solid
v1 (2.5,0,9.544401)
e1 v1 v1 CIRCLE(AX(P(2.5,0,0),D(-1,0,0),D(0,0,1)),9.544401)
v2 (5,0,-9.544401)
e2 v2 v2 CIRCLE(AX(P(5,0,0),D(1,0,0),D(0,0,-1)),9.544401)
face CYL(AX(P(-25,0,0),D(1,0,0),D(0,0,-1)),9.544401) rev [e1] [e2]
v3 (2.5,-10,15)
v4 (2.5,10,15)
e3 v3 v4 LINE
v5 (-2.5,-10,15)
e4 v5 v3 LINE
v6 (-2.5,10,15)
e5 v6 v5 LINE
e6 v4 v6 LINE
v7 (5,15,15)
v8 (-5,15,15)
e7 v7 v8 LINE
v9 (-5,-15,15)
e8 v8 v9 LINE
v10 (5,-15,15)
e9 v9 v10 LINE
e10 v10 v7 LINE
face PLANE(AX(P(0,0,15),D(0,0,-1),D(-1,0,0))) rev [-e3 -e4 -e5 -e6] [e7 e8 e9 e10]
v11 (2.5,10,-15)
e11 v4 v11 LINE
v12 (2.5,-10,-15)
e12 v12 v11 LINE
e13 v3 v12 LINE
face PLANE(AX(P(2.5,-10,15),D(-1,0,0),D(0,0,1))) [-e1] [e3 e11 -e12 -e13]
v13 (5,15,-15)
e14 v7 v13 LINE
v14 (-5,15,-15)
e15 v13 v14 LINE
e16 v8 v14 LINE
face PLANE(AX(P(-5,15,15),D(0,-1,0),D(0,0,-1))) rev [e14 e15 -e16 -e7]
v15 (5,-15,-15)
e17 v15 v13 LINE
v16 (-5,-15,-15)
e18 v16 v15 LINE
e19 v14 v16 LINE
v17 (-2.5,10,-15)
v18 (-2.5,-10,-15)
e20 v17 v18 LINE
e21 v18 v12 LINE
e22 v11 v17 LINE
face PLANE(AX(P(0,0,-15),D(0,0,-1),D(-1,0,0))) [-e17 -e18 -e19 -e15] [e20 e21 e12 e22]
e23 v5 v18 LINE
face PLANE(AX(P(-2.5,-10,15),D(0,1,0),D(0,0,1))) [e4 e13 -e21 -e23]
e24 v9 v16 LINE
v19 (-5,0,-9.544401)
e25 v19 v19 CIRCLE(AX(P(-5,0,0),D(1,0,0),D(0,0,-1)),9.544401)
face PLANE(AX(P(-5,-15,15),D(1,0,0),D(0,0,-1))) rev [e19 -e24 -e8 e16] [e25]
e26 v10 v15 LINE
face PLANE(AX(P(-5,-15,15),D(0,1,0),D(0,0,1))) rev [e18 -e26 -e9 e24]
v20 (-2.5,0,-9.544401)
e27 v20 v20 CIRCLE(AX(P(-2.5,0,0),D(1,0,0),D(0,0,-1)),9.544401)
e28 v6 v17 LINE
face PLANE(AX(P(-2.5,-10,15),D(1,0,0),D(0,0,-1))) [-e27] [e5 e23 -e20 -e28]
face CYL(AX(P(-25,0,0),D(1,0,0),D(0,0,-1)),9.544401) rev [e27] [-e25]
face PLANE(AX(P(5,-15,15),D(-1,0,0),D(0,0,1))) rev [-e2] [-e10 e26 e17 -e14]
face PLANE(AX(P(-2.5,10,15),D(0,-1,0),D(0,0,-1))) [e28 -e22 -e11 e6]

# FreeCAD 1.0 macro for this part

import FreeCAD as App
import Part
import Sketcher
Q = App.Units.Quantity


def add_polygon(sketch, points):
    """Adds a closed chain of lines whose ends are joined by coincident constraints."""
    first, n = sketch.GeometryCount, len(points)
    for a, b in zip(points, points[1:] + points[:1]):
        sketch.addGeometry(Part.LineSegment(App.Vector(*a, 0), App.Vector(*b, 0)), False)
    for i in range(n):
        sketch.addConstraint(Sketcher.Constraint("Coincident", first + i, 2, first + (i + 1) % n, 1))

doc = App.newDocument("Part")
params = doc.addObject("Spreadsheet::Sheet", "Params")
for row, (alias, value) in enumerate([
    ("sketch1_width", "10 mm"),
    ("sketch1_width2", "5 mm"),
    ("sketch1_height", "30 mm"),
    ("sketch1_height2", "20 mm"),
    ("pad1_length", "30 mm"),
    ("pocket1_length", "30 mm"),
], start=1):
    params.set(f"A{row}", alias)
    params.set(f"B{row}", "=" + value)
    params.setAlias(f"B{row}", alias)

body = doc.addObject("PartDesign::Body", "Body")

sketch1 = body.newObject("Sketcher::SketchObject", "Sketch")
sketch1.AttachmentSupport = (doc.getObject("XY_Plane"), [""])
sketch1.MapMode = "FlatFace"
add_polygon(sketch1, [(-5, 15), (-5, -15), (5, -15), (5, 15)])
add_polygon(sketch1, [(2, -10), (-2, -10), (-2, 10), (2, 10)])
sketch1.addConstraint([
    Sketcher.Constraint("Vertical", 0),
    Sketcher.Constraint("Horizontal", 1),
    Sketcher.Constraint("Vertical", 2),
    Sketcher.Constraint("Horizontal", 3),
    Sketcher.Constraint("Horizontal", 4),
    Sketcher.Constraint("Vertical", 5),
    Sketcher.Constraint("Horizontal", 6),
    Sketcher.Constraint("Vertical", 7),
    Sketcher.Constraint("Symmetric", 0, 2, 2, 2, -1, 1),
    Sketcher.Constraint("Symmetric", 4, 2, 6, 2, -1, 1),
    Sketcher.Constraint("DistanceX", 1, 1, 1, 2, Q("10 mm")),
    Sketcher.Constraint("DistanceX", 4, 2, 4, 1, Q("5 mm")),
    Sketcher.Constraint("DistanceY", 0, 2, 0, 1, Q("30 mm")),
    Sketcher.Constraint("DistanceY", 5, 1, 5, 2, Q("20 mm")),
])
sketch1.setExpression("Constraints[18]", "Params.sketch1_width")
sketch1.setExpression("Constraints[19]", "Params.sketch1_width2")
sketch1.setExpression("Constraints[20]", "Params.sketch1_height")
sketch1.setExpression("Constraints[21]", "Params.sketch1_height2")
pad1 = body.newObject("PartDesign::Pad", "Pad")
pad1.Profile = sketch1
pad1.setExpression("Length", "Params.pad1_length")
pad1.Midplane = True

sketch2 = body.newObject("Sketcher::SketchObject", "Sketch001")
sketch2.AttachmentSupport = (doc.getObject("YZ_Plane"), [""])
sketch2.MapMode = "FlatFace"
sketch2.AttachmentOffset = App.Placement(App.Vector(0, 0, 5), App.Rotation())
sketch2.addGeometry(Part.Circle(App.Vector(0, 0, 0), App.Vector(0, 0, 1), 10), False)
sketch2.addConstraint([
    Sketcher.Constraint("Coincident", 0, 3, -1, 1),
    Sketcher.Constraint("Diameter", 0, Q("19.088802 mm")),
])
pocket1 = body.newObject("PartDesign::Pocket", "Pocket")
pocket1.Profile = sketch2
pocket1.setExpression("Length", "Params.pocket1_length")

doc.recompute()
